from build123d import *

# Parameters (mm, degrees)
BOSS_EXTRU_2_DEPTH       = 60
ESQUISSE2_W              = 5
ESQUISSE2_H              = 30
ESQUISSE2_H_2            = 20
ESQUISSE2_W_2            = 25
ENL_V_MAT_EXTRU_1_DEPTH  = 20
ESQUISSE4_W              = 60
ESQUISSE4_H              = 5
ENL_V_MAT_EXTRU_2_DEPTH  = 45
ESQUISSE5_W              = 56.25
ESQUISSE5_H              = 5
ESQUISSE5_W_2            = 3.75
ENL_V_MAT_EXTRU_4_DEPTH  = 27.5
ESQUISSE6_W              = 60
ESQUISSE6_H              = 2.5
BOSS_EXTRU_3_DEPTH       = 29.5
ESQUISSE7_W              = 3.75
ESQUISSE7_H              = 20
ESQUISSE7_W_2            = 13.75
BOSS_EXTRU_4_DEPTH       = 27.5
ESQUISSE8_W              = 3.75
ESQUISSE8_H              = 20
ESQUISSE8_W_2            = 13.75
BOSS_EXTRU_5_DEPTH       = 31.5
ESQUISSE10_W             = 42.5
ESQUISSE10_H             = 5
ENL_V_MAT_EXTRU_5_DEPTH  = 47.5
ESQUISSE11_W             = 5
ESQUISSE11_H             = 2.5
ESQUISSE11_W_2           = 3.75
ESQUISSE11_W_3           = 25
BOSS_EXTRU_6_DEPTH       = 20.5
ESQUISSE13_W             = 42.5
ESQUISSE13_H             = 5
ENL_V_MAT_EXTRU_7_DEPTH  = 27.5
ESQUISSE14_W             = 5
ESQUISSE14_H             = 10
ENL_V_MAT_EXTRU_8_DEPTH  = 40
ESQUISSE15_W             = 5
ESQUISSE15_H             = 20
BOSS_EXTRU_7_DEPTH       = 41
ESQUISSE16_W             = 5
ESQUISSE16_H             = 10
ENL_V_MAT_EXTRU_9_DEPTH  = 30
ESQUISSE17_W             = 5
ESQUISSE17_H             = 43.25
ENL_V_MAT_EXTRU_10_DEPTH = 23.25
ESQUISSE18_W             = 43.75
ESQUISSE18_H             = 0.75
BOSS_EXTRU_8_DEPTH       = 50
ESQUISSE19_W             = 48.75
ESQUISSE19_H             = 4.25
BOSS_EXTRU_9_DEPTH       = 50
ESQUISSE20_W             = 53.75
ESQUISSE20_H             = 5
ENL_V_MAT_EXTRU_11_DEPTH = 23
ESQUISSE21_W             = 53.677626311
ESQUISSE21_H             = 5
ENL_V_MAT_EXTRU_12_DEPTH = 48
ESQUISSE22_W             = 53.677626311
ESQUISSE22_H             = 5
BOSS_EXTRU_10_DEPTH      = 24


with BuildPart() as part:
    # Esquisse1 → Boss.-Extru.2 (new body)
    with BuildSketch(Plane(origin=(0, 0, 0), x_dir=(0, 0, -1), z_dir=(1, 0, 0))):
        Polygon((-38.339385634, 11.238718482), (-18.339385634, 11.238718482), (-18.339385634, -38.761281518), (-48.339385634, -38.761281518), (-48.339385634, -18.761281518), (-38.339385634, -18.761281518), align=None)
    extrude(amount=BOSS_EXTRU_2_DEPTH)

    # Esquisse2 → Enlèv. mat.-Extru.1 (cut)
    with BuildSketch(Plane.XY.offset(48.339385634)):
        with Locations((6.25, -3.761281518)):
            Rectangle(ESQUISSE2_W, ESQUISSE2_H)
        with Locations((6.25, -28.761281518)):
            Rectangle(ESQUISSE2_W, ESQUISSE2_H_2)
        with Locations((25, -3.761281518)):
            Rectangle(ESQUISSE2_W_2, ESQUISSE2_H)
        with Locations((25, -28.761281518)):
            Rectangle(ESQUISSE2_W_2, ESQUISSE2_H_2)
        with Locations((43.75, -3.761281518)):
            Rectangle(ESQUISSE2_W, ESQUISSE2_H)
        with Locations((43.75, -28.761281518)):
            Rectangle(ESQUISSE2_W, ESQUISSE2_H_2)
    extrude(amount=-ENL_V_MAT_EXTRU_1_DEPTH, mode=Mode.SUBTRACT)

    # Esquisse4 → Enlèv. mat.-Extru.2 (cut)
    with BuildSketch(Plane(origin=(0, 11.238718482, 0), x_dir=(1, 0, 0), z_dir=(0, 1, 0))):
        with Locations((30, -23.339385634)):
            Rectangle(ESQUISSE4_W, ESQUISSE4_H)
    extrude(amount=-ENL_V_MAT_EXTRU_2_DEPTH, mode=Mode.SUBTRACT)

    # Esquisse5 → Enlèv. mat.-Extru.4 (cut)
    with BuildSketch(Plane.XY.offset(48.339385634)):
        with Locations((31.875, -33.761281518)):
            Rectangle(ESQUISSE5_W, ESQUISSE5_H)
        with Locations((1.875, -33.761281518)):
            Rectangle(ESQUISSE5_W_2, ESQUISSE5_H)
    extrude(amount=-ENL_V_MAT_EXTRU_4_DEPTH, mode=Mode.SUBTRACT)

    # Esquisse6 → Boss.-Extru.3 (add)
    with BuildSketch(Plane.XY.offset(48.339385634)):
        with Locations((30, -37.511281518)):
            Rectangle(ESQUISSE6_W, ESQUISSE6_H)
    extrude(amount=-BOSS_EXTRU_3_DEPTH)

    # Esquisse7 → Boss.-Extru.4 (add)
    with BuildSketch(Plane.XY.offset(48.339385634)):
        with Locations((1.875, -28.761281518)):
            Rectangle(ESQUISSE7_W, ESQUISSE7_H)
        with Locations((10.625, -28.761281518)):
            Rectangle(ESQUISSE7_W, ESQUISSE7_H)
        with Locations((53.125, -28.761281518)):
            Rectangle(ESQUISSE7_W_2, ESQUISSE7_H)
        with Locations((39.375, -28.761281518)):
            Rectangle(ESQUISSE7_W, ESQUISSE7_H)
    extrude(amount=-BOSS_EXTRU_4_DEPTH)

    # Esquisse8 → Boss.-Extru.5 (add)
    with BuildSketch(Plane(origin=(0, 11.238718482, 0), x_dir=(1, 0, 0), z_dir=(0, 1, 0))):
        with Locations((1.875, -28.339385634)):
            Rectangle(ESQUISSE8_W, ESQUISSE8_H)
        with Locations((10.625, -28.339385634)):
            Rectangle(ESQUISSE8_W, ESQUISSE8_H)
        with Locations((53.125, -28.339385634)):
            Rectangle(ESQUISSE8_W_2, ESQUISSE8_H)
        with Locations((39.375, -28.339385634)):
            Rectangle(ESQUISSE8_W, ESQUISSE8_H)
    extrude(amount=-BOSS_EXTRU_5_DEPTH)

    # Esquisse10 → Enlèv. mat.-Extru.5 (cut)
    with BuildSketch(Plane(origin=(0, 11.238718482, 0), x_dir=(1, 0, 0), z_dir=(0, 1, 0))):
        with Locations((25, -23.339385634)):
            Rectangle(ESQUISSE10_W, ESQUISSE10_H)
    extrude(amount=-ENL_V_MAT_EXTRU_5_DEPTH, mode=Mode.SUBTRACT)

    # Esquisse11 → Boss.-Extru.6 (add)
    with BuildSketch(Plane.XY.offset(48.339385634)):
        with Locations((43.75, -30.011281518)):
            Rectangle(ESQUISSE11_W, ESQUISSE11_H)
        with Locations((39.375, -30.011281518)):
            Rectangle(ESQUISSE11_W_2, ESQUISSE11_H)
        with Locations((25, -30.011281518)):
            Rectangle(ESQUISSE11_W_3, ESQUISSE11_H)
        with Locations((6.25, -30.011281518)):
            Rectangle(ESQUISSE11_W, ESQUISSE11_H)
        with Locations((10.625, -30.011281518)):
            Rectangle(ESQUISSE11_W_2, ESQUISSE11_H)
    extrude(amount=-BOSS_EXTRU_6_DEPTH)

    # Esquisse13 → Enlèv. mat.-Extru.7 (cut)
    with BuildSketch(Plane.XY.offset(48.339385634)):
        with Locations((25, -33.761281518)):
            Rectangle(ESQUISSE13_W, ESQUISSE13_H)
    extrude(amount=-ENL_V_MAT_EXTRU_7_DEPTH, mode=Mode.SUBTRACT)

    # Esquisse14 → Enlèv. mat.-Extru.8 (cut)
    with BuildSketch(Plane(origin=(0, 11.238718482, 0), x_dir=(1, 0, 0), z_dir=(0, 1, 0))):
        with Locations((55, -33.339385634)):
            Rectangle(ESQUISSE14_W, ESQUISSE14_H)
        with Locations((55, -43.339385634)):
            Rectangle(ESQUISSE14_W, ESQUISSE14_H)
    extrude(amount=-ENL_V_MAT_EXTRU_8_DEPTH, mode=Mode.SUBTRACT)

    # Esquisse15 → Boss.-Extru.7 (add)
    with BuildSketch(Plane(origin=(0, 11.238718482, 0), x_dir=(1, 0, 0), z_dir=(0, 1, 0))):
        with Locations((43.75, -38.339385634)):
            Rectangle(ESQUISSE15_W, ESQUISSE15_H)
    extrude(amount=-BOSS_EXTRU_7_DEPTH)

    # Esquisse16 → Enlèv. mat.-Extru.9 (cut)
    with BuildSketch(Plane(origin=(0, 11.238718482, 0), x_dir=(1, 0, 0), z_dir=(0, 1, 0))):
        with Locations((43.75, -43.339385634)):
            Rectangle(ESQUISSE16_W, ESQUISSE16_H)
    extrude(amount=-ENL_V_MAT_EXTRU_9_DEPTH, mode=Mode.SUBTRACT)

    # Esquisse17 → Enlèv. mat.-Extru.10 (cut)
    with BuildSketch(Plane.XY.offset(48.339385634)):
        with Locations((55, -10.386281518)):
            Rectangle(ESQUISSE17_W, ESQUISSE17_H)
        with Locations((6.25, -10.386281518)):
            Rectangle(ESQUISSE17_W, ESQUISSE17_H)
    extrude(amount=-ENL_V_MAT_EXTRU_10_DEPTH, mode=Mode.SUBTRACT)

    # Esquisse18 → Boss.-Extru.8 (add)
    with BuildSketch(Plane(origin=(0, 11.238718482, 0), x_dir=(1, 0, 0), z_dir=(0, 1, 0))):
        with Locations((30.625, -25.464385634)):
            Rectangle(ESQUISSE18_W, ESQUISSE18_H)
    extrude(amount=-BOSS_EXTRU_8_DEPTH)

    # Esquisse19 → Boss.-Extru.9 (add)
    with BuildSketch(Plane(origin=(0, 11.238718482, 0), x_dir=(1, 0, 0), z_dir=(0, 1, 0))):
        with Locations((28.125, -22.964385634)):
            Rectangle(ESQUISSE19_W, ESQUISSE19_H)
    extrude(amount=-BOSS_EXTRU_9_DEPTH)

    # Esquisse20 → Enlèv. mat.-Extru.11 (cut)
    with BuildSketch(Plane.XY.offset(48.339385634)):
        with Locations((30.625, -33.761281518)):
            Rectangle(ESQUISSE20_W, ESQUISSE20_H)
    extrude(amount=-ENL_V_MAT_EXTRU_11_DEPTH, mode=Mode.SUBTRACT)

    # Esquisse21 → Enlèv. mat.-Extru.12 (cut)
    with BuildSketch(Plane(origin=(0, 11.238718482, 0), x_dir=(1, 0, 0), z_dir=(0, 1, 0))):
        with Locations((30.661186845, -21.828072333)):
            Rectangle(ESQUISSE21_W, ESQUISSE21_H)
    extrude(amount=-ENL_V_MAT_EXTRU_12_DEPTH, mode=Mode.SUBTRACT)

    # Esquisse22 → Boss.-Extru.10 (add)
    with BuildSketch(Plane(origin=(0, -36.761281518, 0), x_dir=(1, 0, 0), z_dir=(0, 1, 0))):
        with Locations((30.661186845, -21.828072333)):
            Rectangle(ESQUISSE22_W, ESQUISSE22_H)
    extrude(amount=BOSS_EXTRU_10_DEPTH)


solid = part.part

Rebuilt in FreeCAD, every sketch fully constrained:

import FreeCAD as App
import Part
import Sketcher
Q = App.Units.Quantity

doc = App.newDocument("Part")
body = doc.addObject("PartDesign::Body", "Body")
body.AllowCompound = True

# Sketch on YZ plane
sketch1 = body.newObject("Sketcher::SketchObject", "Sketch")
sketch1.AttachmentSupport = (doc.getObject("YZ_Plane"), [""])
sketch1.MapMode = "FlatFace"
sketch1.addGeometry(Part.LineSegment(App.Vector(11, 18, 0), App.Vector(11, 38, 0)), False)
sketch1.addGeometry(Part.LineSegment(App.Vector(11, 38, 0), App.Vector(-19, 38, 0)), False)
sketch1.addGeometry(Part.LineSegment(App.Vector(-19, 38, 0), App.Vector(-19, 48, 0)), False)
sketch1.addGeometry(Part.LineSegment(App.Vector(-19, 48, 0), App.Vector(-39, 48, 0)), False)
sketch1.addGeometry(Part.LineSegment(App.Vector(-39, 48, 0), App.Vector(-39, 18, 0)), False)
sketch1.addGeometry(Part.LineSegment(App.Vector(-39, 18, 0), App.Vector(11, 18, 0)), False)
sketch1.addConstraint(Sketcher.Constraint("Coincident", 0, 2, 1, 1))
sketch1.addConstraint(Sketcher.Constraint("Coincident", 1, 2, 2, 1))
sketch1.addConstraint(Sketcher.Constraint("Coincident", 2, 2, 3, 1))
sketch1.addConstraint(Sketcher.Constraint("Coincident", 3, 2, 4, 1))
sketch1.addConstraint(Sketcher.Constraint("Coincident", 4, 2, 5, 1))
sketch1.addConstraint(Sketcher.Constraint("Coincident", 5, 2, 0, 1))
sketch1.addConstraint(Sketcher.Constraint("Vertical", 0))
sketch1.addConstraint(Sketcher.Constraint("Horizontal", 1))
sketch1.addConstraint(Sketcher.Constraint("Vertical", 2))
sketch1.addConstraint(Sketcher.Constraint("Horizontal", 3))
sketch1.addConstraint(Sketcher.Constraint("Vertical", 4))
sketch1.addConstraint(Sketcher.Constraint("Horizontal", 5))
sketch1.addConstraint(Sketcher.Constraint("Equal", 3, 0))
sketch1.addConstraint(Sketcher.Constraint("Equal", 1, 4))
sketch1.addConstraint(Sketcher.Constraint("DistanceX", 1, 2, 1, 1, Q("30 mm")))
sketch1.addConstraint(Sketcher.Constraint("DistanceX", 3, 2, 3, 1, Q("20 mm")))
sketch1.addConstraint(Sketcher.Constraint("DistanceX", -1, 1, 0, 2, Q("11.238718 mm")))
sketch1.addConstraint(Sketcher.Constraint("DistanceY", -1, 1, 0, 2, Q("38.339386 mm")))
pad1 = body.newObject("PartDesign::Pad", "Pad")
pad1.Profile = sketch1
pad1.Length = 60

# Sketch on XY plane
sketch2 = body.newObject("Sketcher::SketchObject", "Sketch001")
sketch2.AttachmentSupport = (doc.getObject("XY_Plane"), [""])
sketch2.MapMode = "FlatFace"
sketch2.AttachmentOffset = App.Placement(App.Vector(0, 0, 48.339386), App.Rotation())
sketch2.addGeometry(Part.LineSegment(App.Vector(4, 11, 0), App.Vector(4, -39, 0)), False)
sketch2.addGeometry(Part.LineSegment(App.Vector(4, -39, 0), App.Vector(9, -39, 0)), False)
sketch2.addGeometry(Part.LineSegment(App.Vector(9, -39, 0), App.Vector(9, 11, 0)), False)
sketch2.addGeometry(Part.LineSegment(App.Vector(9, 11, 0), App.Vector(4, 11, 0)), False)
sketch2.addGeometry(Part.LineSegment(App.Vector(12, 11, 0), App.Vector(12, -39, 0)), False)
sketch2.addGeometry(Part.LineSegment(App.Vector(12, -39, 0), App.Vector(38, -39, 0)), False)
sketch2.addGeometry(Part.LineSegment(App.Vector(38, -39, 0), App.Vector(38, 11, 0)), False)
sketch2.addGeometry(Part.LineSegment(App.Vector(38, 11, 0), App.Vector(12, 11, 0)), False)
sketch2.addGeometry(Part.LineSegment(App.Vector(41, 11, 0), App.Vector(41, -39, 0)), False)
sketch2.addGeometry(Part.LineSegment(App.Vector(41, -39, 0), App.Vector(46, -39, 0)), False)
sketch2.addGeometry(Part.LineSegment(App.Vector(46, -39, 0), App.Vector(46, 11, 0)), False)
sketch2.addGeometry(Part.LineSegment(App.Vector(46, 11, 0), App.Vector(41, 11, 0)), False)
sketch2.addConstraint(Sketcher.Constraint("Coincident", 0, 2, 1, 1))
sketch2.addConstraint(Sketcher.Constraint("Coincident", 1, 2, 2, 1))
sketch2.addConstraint(Sketcher.Constraint("Coincident", 2, 2, 3, 1))
sketch2.addConstraint(Sketcher.Constraint("Coincident", 3, 2, 0, 1))
sketch2.addConstraint(Sketcher.Constraint("Coincident", 4, 2, 5, 1))
sketch2.addConstraint(Sketcher.Constraint("Coincident", 5, 2, 6, 1))
sketch2.addConstraint(Sketcher.Constraint("Coincident", 6, 2, 7, 1))
sketch2.addConstraint(Sketcher.Constraint("Coincident", 7, 2, 4, 1))
sketch2.addConstraint(Sketcher.Constraint("Coincident", 8, 2, 9, 1))
sketch2.addConstraint(Sketcher.Constraint("Coincident", 9, 2, 10, 1))
sketch2.addConstraint(Sketcher.Constraint("Coincident", 10, 2, 11, 1))
sketch2.addConstraint(Sketcher.Constraint("Coincident", 11, 2, 8, 1))
sketch2.addConstraint(Sketcher.Constraint("Vertical", 0))
sketch2.addConstraint(Sketcher.Constraint("Horizontal", 1))
sketch2.addConstraint(Sketcher.Constraint("Vertical", 2))
sketch2.addConstraint(Sketcher.Constraint("Horizontal", 3))
sketch2.addConstraint(Sketcher.Constraint("Vertical", 4))
sketch2.addConstraint(Sketcher.Constraint("Horizontal", 5))
sketch2.addConstraint(Sketcher.Constraint("Vertical", 6))
sketch2.addConstraint(Sketcher.Constraint("Horizontal", 7))
sketch2.addConstraint(Sketcher.Constraint("Vertical", 8))
sketch2.addConstraint(Sketcher.Constraint("Horizontal", 9))
sketch2.addConstraint(Sketcher.Constraint("Vertical", 10))
sketch2.addConstraint(Sketcher.Constraint("Horizontal", 11))
sketch2.addConstraint(Sketcher.Constraint("Horizontal", 1, 2, 4, 2))
sketch2.addConstraint(Sketcher.Constraint("Horizontal", 3, 2, 6, 2))
sketch2.addConstraint(Sketcher.Constraint("Horizontal", 5, 2, 8, 2))
sketch2.addConstraint(Sketcher.Constraint("Horizontal", 7, 2, 10, 2))
sketch2.addConstraint(Sketcher.Constraint("Equal", 3, 9))
sketch2.addConstraint(Sketcher.Constraint("DistanceX", 1, 1, 1, 2, Q("5 mm")))
sketch2.addConstraint(Sketcher.Constraint("DistanceX", 5, 1, 5, 2, Q("25 mm")))
sketch2.addConstraint(Sketcher.Constraint("DistanceY", 0, 2, 0, 1, Q("50 mm")))
sketch2.addConstraint(Sketcher.Constraint("DistanceX", -1, 1, 4, 2, Q("12.5 mm")))
sketch2.addConstraint(Sketcher.Constraint("DistanceX", 1, 2, 8, 2, Q("32.5 mm")))
sketch2.addConstraint(Sketcher.Constraint("DistanceX", -1, 1, 0, 2, Q("3.75 mm")))
sketch2.addConstraint(Sketcher.Constraint("DistanceY", 0, 2, -1, 1, Q("38.761282 mm")))
pocket1 = body.newObject("PartDesign::Pocket", "Pocket")
pocket1.Profile = sketch2
pocket1.Length = 20

# Sketch on XZ plane
sketch3 = body.newObject("Sketcher::SketchObject", "Sketch002")
sketch3.AttachmentSupport = (doc.getObject("XZ_Plane"), [""])
sketch3.MapMode = "FlatFace"
sketch3.AttachmentOffset = App.Placement(App.Vector(0, 0, -11.238718), App.Rotation())
sketch3.addGeometry(Part.LineSegment(App.Vector(0, 21, 0), App.Vector(0, 26, 0)), False)
sketch3.addGeometry(Part.LineSegment(App.Vector(0, 26, 0), App.Vector(60, 26, 0)), False)
sketch3.addGeometry(Part.LineSegment(App.Vector(60, 26, 0), App.Vector(60, 21, 0)), False)
sketch3.addGeometry(Part.LineSegment(App.Vector(60, 21, 0), App.Vector(0, 21, 0)), False)
sketch3.addConstraint(Sketcher.Constraint("Coincident", 0, 2, 1, 1))
sketch3.addConstraint(Sketcher.Constraint("Coincident", 1, 2, 2, 1))
sketch3.addConstraint(Sketcher.Constraint("Coincident", 2, 2, 3, 1))
sketch3.addConstraint(Sketcher.Constraint("Coincident", 3, 2, 0, 1))
sketch3.addConstraint(Sketcher.Constraint("Vertical", 0))
sketch3.addConstraint(Sketcher.Constraint("Horizontal", 1))
sketch3.addConstraint(Sketcher.Constraint("Vertical", 2))
sketch3.addConstraint(Sketcher.Constraint("Horizontal", 3))
sketch3.addConstraint(Sketcher.Constraint("PointOnObject", 0, 2, -2))
sketch3.addConstraint(Sketcher.Constraint("DistanceX", 1, 1, 1, 2, Q("60 mm")))
sketch3.addConstraint(Sketcher.Constraint("DistanceY", 0, 1, 0, 2, Q("5 mm")))
sketch3.addConstraint(Sketcher.Constraint("DistanceY", -1, 1, 0, 2, Q("25.839386 mm")))
pocket2 = body.newObject("PartDesign::Pocket", "Pocket001")
pocket2.Profile = sketch3
pocket2.Length = 45
pocket2.Reversed = True

# Sketch on XY plane
sketch4 = body.newObject("Sketcher::SketchObject", "Sketch003")
sketch4.AttachmentSupport = (doc.getObject("XY_Plane"), [""])
sketch4.MapMode = "FlatFace"
sketch4.AttachmentOffset = App.Placement(App.Vector(0, 0, 48.339386), App.Rotation())
sketch4.addGeometry(Part.LineSegment(App.Vector(60, -36.3, 0), App.Vector(60, -31.3, 0)), False)
sketch4.addGeometry(Part.LineSegment(App.Vector(60, -31.3, 0), App.Vector(0, -31.3, 0)), False)
sketch4.addGeometry(Part.LineSegment(App.Vector(0, -31.3, 0), App.Vector(0, -36.3, 0)), False)
sketch4.addGeometry(Part.LineSegment(App.Vector(0, -36.3, 0), App.Vector(60, -36.3, 0)), False)
sketch4.addConstraint(Sketcher.Constraint("Coincident", 0, 2, 1, 1))
sketch4.addConstraint(Sketcher.Constraint("Coincident", 1, 2, 2, 1))
sketch4.addConstraint(Sketcher.Constraint("Coincident", 2, 2, 3, 1))
sketch4.addConstraint(Sketcher.Constraint("Coincident", 3, 2, 0, 1))
sketch4.addConstraint(Sketcher.Constraint("Vertical", 0))
sketch4.addConstraint(Sketcher.Constraint("Horizontal", 1))
sketch4.addConstraint(Sketcher.Constraint("Vertical", 2))
sketch4.addConstraint(Sketcher.Constraint("Horizontal", 3))
sketch4.addConstraint(Sketcher.Constraint("PointOnObject", 1, 2, -2))
sketch4.addConstraint(Sketcher.Constraint("DistanceX", 1, 2, 1, 1, Q("60 mm")))
sketch4.addConstraint(Sketcher.Constraint("DistanceY", 0, 1, 0, 2, Q("5 mm")))
sketch4.addConstraint(Sketcher.Constraint("DistanceY", 0, 2, -1, 1, Q("31.261282 mm")))
pocket3 = body.newObject("PartDesign::Pocket", "Pocket002")
pocket3.Profile = sketch4
pocket3.Length = 27.5

# Sketch on XY plane
sketch5 = body.newObject("Sketcher::SketchObject", "Sketch004")
sketch5.AttachmentSupport = (doc.getObject("XY_Plane"), [""])
sketch5.MapMode = "FlatFace"
sketch5.AttachmentOffset = App.Placement(App.Vector(0, 0, 48.339386), App.Rotation())
sketch5.addGeometry(Part.LineSegment(App.Vector(0, -36.3, 0), App.Vector(0, -38.8, 0)), False)
sketch5.addGeometry(Part.LineSegment(App.Vector(0, -38.8, 0), App.Vector(60, -38.8, 0)), False)
sketch5.addGeometry(Part.LineSegment(App.Vector(60, -38.8, 0), App.Vector(60, -36.3, 0)), False)
sketch5.addGeometry(Part.LineSegment(App.Vector(60, -36.3, 0), App.Vector(0, -36.3, 0)), False)
sketch5.addConstraint(Sketcher.Constraint("Coincident", 0, 2, 1, 1))
sketch5.addConstraint(Sketcher.Constraint("Coincident", 1, 2, 2, 1))
sketch5.addConstraint(Sketcher.Constraint("Coincident", 2, 2, 3, 1))
sketch5.addConstraint(Sketcher.Constraint("Coincident", 3, 2, 0, 1))
sketch5.addConstraint(Sketcher.Constraint("Vertical", 0))
sketch5.addConstraint(Sketcher.Constraint("Horizontal", 1))
sketch5.addConstraint(Sketcher.Constraint("Vertical", 2))
sketch5.addConstraint(Sketcher.Constraint("Horizontal", 3))
sketch5.addConstraint(Sketcher.Constraint("PointOnObject", 0, 2, -2))
sketch5.addConstraint(Sketcher.Constraint("DistanceX", 1, 1, 1, 2, Q("60 mm")))
sketch5.addConstraint(Sketcher.Constraint("DistanceY", 0, 2, 0, 1, Q("2.5 mm")))
sketch5.addConstraint(Sketcher.Constraint("DistanceY", 0, 2, -1, 1, Q("38.761282 mm")))
pad2 = body.newObject("PartDesign::Pad", "Pad001")
pad2.Profile = sketch5
pad2.Length = 29.5
pad2.Reversed = True

# Sketch on XY plane
sketch6 = body.newObject("Sketcher::SketchObject", "Sketch005")
sketch6.AttachmentSupport = (doc.getObject("XY_Plane"), [""])
sketch6.MapMode = "FlatFace"
sketch6.AttachmentOffset = App.Placement(App.Vector(0, 0, 48.339386), App.Rotation())
sketch6.addGeometry(Part.LineSegment(App.Vector(0, -18.8, 0), App.Vector(0, -38.8, 0)), False)
sketch6.addGeometry(Part.LineSegment(App.Vector(0, -38.8, 0), App.Vector(3.8, -38.8, 0)), False)
sketch6.addGeometry(Part.LineSegment(App.Vector(3.8, -38.8, 0), App.Vector(3.8, -18.8, 0)), False)
sketch6.addGeometry(Part.LineSegment(App.Vector(3.8, -18.8, 0), App.Vector(0, -18.8, 0)), False)
sketch6.addGeometry(Part.LineSegment(App.Vector(8.8, -18.8, 0), App.Vector(8.8, -38.8, 0)), False)
sketch6.addGeometry(Part.LineSegment(App.Vector(8.8, -38.8, 0), App.Vector(12.5, -38.8, 0)), False)
sketch6.addGeometry(Part.LineSegment(App.Vector(12.5, -38.8, 0), App.Vector(12.5, -18.8, 0)), False)
sketch6.addGeometry(Part.LineSegment(App.Vector(12.5, -18.8, 0), App.Vector(8.8, -18.8, 0)), False)
sketch6.addGeometry(Part.LineSegment(App.Vector(46.2, -18.8, 0), App.Vector(46.2, -38.8, 0)), False)
sketch6.addGeometry(Part.LineSegment(App.Vector(46.2, -38.8, 0), App.Vector(60, -38.8, 0)), False)
sketch6.addGeometry(Part.LineSegment(App.Vector(60, -38.8, 0), App.Vector(60, -18.8, 0)), False)
sketch6.addGeometry(Part.LineSegment(App.Vector(60, -18.8, 0), App.Vector(46.2, -18.8, 0)), False)
sketch6.addGeometry(Part.LineSegment(App.Vector(37.5, -18.8, 0), App.Vector(37.5, -38.8, 0)), False)
sketch6.addGeometry(Part.LineSegment(App.Vector(37.5, -38.8, 0), App.Vector(41.2, -38.8, 0)), False)
sketch6.addGeometry(Part.LineSegment(App.Vector(41.2, -38.8, 0), App.Vector(41.2, -18.8, 0)), False)
sketch6.addGeometry(Part.LineSegment(App.Vector(41.2, -18.8, 0), App.Vector(37.5, -18.8, 0)), False)
sketch6.addConstraint(Sketcher.Constraint("Coincident", 0, 2, 1, 1))
sketch6.addConstraint(Sketcher.Constraint("Coincident", 1, 2, 2, 1))
sketch6.addConstraint(Sketcher.Constraint("Coincident", 2, 2, 3, 1))
sketch6.addConstraint(Sketcher.Constraint("Coincident", 3, 2, 0, 1))
sketch6.addConstraint(Sketcher.Constraint("Coincident", 4, 2, 5, 1))
sketch6.addConstraint(Sketcher.Constraint("Coincident", 5, 2, 6, 1))
sketch6.addConstraint(Sketcher.Constraint("Coincident", 6, 2, 7, 1))
sketch6.addConstraint(Sketcher.Constraint("Coincident", 7, 2, 4, 1))
sketch6.addConstraint(Sketcher.Constraint("Coincident", 8, 2, 9, 1))
sketch6.addConstraint(Sketcher.Constraint("Coincident", 9, 2, 10, 1))
sketch6.addConstraint(Sketcher.Constraint("Coincident", 10, 2, 11, 1))
sketch6.addConstraint(Sketcher.Constraint("Coincident", 11, 2, 8, 1))
sketch6.addConstraint(Sketcher.Constraint("Coincident", 12, 2, 13, 1))
sketch6.addConstraint(Sketcher.Constraint("Coincident", 13, 2, 14, 1))
sketch6.addConstraint(Sketcher.Constraint("Coincident", 14, 2, 15, 1))
sketch6.addConstraint(Sketcher.Constraint("Coincident", 15, 2, 12, 1))
sketch6.addConstraint(Sketcher.Constraint("Vertical", 0))
sketch6.addConstraint(Sketcher.Constraint("Horizontal", 1))
sketch6.addConstraint(Sketcher.Constraint("Vertical", 2))
sketch6.addConstraint(Sketcher.Constraint("Horizontal", 3))
sketch6.addConstraint(Sketcher.Constraint("Vertical", 4))
sketch6.addConstraint(Sketcher.Constraint("Horizontal", 5))
sketch6.addConstraint(Sketcher.Constraint("Vertical", 6))
sketch6.addConstraint(Sketcher.Constraint("Horizontal", 7))
sketch6.addConstraint(Sketcher.Constraint("Vertical", 8))
sketch6.addConstraint(Sketcher.Constraint("Horizontal", 9))
sketch6.addConstraint(Sketcher.Constraint("Vertical", 10))
sketch6.addConstraint(Sketcher.Constraint("Horizontal", 11))
sketch6.addConstraint(Sketcher.Constraint("Vertical", 12))
sketch6.addConstraint(Sketcher.Constraint("Horizontal", 13))
sketch6.addConstraint(Sketcher.Constraint("Vertical", 14))
sketch6.addConstraint(Sketcher.Constraint("Horizontal", 15))
sketch6.addConstraint(Sketcher.Constraint("PointOnObject", 0, 2, -2))
sketch6.addConstraint(Sketcher.Constraint("Horizontal", 1, 2, 4, 2))
sketch6.addConstraint(Sketcher.Constraint("Horizontal", 3, 2, 6, 2))
sketch6.addConstraint(Sketcher.Constraint("Horizontal", 5, 2, 8, 2))
sketch6.addConstraint(Sketcher.Constraint("Horizontal", 7, 2, 10, 2))
sketch6.addConstraint(Sketcher.Constraint("Horizontal", 9, 2, 12, 2))
sketch6.addConstraint(Sketcher.Constraint("Horizontal", 11, 2, 14, 2))
sketch6.addConstraint(Sketcher.Constraint("Equal", 3, 5))
sketch6.addConstraint(Sketcher.Constraint("Equal", 7, 13))
sketch6.addConstraint(Sketcher.Constraint("DistanceY", 0, 2, 0, 1, Q("20 mm")))
sketch6.addConstraint(Sketcher.Constraint("DistanceX", -1, 1, 9, 2, Q("60 mm")))
sketch6.addConstraint(Sketcher.Constraint("DistanceX", 1, 2, 4, 2, Q("5 mm")))
sketch6.addConstraint(Sketcher.Constraint("DistanceX", 5, 2, 12, 2, Q("25 mm")))
sketch6.addConstraint(Sketcher.Constraint("DistanceX", 13, 2, 8, 2, Q("5 mm")))
sketch6.addConstraint(Sketcher.Constraint("DistanceX", 1, 1, 1, 2, Q("3.75 mm")))
sketch6.addConstraint(Sketcher.Constraint("DistanceY", 0, 2, -1, 1, Q("38.761282 mm")))
pad3 = body.newObject("PartDesign::Pad", "Pad002")
pad3.Profile = sketch6
pad3.Length = 27.5
pad3.Reversed = True

# Sketch on XZ plane
sketch7 = body.newObject("Sketcher::SketchObject", "Sketch006")
sketch7.AttachmentSupport = (doc.getObject("XZ_Plane"), [""])
sketch7.MapMode = "FlatFace"
sketch7.AttachmentOffset = App.Placement(App.Vector(0, 0, -11.238718), App.Rotation())
sketch7.addGeometry(Part.LineSegment(App.Vector(0, 18.3, 0), App.Vector(0, 38.3, 0)), False)
sketch7.addGeometry(Part.LineSegment(App.Vector(0, 38.3, 0), App.Vector(3.8, 38.3, 0)), False)
sketch7.addGeometry(Part.LineSegment(App.Vector(3.8, 38.3, 0), App.Vector(3.8, 18.3, 0)), False)
sketch7.addGeometry(Part.LineSegment(App.Vector(3.8, 18.3, 0), App.Vector(0, 18.3, 0)), False)
sketch7.addGeometry(Part.LineSegment(App.Vector(8.8, 18.3, 0), App.Vector(8.8, 38.3, 0)), False)
sketch7.addGeometry(Part.LineSegment(App.Vector(8.8, 38.3, 0), App.Vector(12.5, 38.3, 0)), False)
sketch7.addGeometry(Part.LineSegment(App.Vector(12.5, 38.3, 0), App.Vector(12.5, 18.3, 0)), False)
sketch7.addGeometry(Part.LineSegment(App.Vector(12.5, 18.3, 0), App.Vector(8.8, 18.3, 0)), False)
sketch7.addGeometry(Part.LineSegment(App.Vector(46.2, 18.3, 0), App.Vector(46.2, 38.3, 0)), False)
sketch7.addGeometry(Part.LineSegment(App.Vector(46.2, 38.3, 0), App.Vector(60, 38.3, 0)), False)
sketch7.addGeometry(Part.LineSegment(App.Vector(60, 38.3, 0), App.Vector(60, 18.3, 0)), False)
sketch7.addGeometry(Part.LineSegment(App.Vector(60, 18.3, 0), App.Vector(46.2, 18.3, 0)), False)
sketch7.addGeometry(Part.LineSegment(App.Vector(37.5, 18.3, 0), App.Vector(37.5, 38.3, 0)), False)
sketch7.addGeometry(Part.LineSegment(App.Vector(37.5, 38.3, 0), App.Vector(41.2, 38.3, 0)), False)
sketch7.addGeometry(Part.LineSegment(App.Vector(41.2, 38.3, 0), App.Vector(41.2, 18.3, 0)), False)
sketch7.addGeometry(Part.LineSegment(App.Vector(41.2, 18.3, 0), App.Vector(37.5, 18.3, 0)), False)
sketch7.addConstraint(Sketcher.Constraint("Coincident", 0, 2, 1, 1))
sketch7.addConstraint(Sketcher.Constraint("Coincident", 1, 2, 2, 1))
sketch7.addConstraint(Sketcher.Constraint("Coincident", 2, 2, 3, 1))
sketch7.addConstraint(Sketcher.Constraint("Coincident", 3, 2, 0, 1))
sketch7.addConstraint(Sketcher.Constraint("Coincident", 4, 2, 5, 1))
sketch7.addConstraint(Sketcher.Constraint("Coincident", 5, 2, 6, 1))
sketch7.addConstraint(Sketcher.Constraint("Coincident", 6, 2, 7, 1))
sketch7.addConstraint(Sketcher.Constraint("Coincident", 7, 2, 4, 1))
sketch7.addConstraint(Sketcher.Constraint("Coincident", 8, 2, 9, 1))
sketch7.addConstraint(Sketcher.Constraint("Coincident", 9, 2, 10, 1))
sketch7.addConstraint(Sketcher.Constraint("Coincident", 10, 2, 11, 1))
sketch7.addConstraint(Sketcher.Constraint("Coincident", 11, 2, 8, 1))
sketch7.addConstraint(Sketcher.Constraint("Coincident", 12, 2, 13, 1))
sketch7.addConstraint(Sketcher.Constraint("Coincident", 13, 2, 14, 1))
sketch7.addConstraint(Sketcher.Constraint("Coincident", 14, 2, 15, 1))
sketch7.addConstraint(Sketcher.Constraint("Coincident", 15, 2, 12, 1))
sketch7.addConstraint(Sketcher.Constraint("Vertical", 0))
sketch7.addConstraint(Sketcher.Constraint("Horizontal", 1))
sketch7.addConstraint(Sketcher.Constraint("Vertical", 2))
sketch7.addConstraint(Sketcher.Constraint("Horizontal", 3))
sketch7.addConstraint(Sketcher.Constraint("Vertical", 4))
sketch7.addConstraint(Sketcher.Constraint("Horizontal", 5))
sketch7.addConstraint(Sketcher.Constraint("Vertical", 6))
sketch7.addConstraint(Sketcher.Constraint("Horizontal", 7))
sketch7.addConstraint(Sketcher.Constraint("Vertical", 8))
sketch7.addConstraint(Sketcher.Constraint("Horizontal", 9))
sketch7.addConstraint(Sketcher.Constraint("Vertical", 10))
sketch7.addConstraint(Sketcher.Constraint("Horizontal", 11))
sketch7.addConstraint(Sketcher.Constraint("Vertical", 12))
sketch7.addConstraint(Sketcher.Constraint("Horizontal", 13))
sketch7.addConstraint(Sketcher.Constraint("Vertical", 14))
sketch7.addConstraint(Sketcher.Constraint("Horizontal", 15))
sketch7.addConstraint(Sketcher.Constraint("PointOnObject", 0, 2, -2))
sketch7.addConstraint(Sketcher.Constraint("Horizontal", 1, 2, 4, 2))
sketch7.addConstraint(Sketcher.Constraint("Horizontal", 3, 2, 6, 2))
sketch7.addConstraint(Sketcher.Constraint("Horizontal", 5, 2, 8, 2))
sketch7.addConstraint(Sketcher.Constraint("Horizontal", 7, 2, 10, 2))
sketch7.addConstraint(Sketcher.Constraint("Horizontal", 9, 2, 12, 2))
sketch7.addConstraint(Sketcher.Constraint("Horizontal", 11, 2, 14, 2))
sketch7.addConstraint(Sketcher.Constraint("Equal", 3, 5))
sketch7.addConstraint(Sketcher.Constraint("Equal", 7, 13))
sketch7.addConstraint(Sketcher.Constraint("DistanceY", 0, 1, 0, 2, Q("20 mm")))
sketch7.addConstraint(Sketcher.Constraint("DistanceX", -1, 1, 9, 2, Q("60 mm")))
sketch7.addConstraint(Sketcher.Constraint("DistanceX", 1, 2, 4, 2, Q("5 mm")))
sketch7.addConstraint(Sketcher.Constraint("DistanceX", 5, 2, 12, 2, Q("25 mm")))
sketch7.addConstraint(Sketcher.Constraint("DistanceX", 13, 2, 8, 2, Q("5 mm")))
sketch7.addConstraint(Sketcher.Constraint("DistanceX", 1, 1, 1, 2, Q("3.75 mm")))
sketch7.addConstraint(Sketcher.Constraint("DistanceY", -1, 1, 0, 2, Q("38.339386 mm")))
pad4 = body.newObject("PartDesign::Pad", "Pad003")
pad4.Profile = sketch7
pad4.Length = 31.5

# Sketch on XZ plane
sketch8 = body.newObject("Sketcher::SketchObject", "Sketch007")
sketch8.AttachmentSupport = (doc.getObject("XZ_Plane"), [""])
sketch8.MapMode = "FlatFace"
sketch8.AttachmentOffset = App.Placement(App.Vector(0, 0, -11.238718), App.Rotation())
sketch8.addGeometry(Part.LineSegment(App.Vector(4, 21, 0), App.Vector(4, 26, 0)), False)
sketch8.addGeometry(Part.LineSegment(App.Vector(4, 26, 0), App.Vector(46, 26, 0)), False)
sketch8.addGeometry(Part.LineSegment(App.Vector(46, 26, 0), App.Vector(46, 21, 0)), False)
sketch8.addGeometry(Part.LineSegment(App.Vector(46, 21, 0), App.Vector(4, 21, 0)), False)
sketch8.addConstraint(Sketcher.Constraint("Coincident", 0, 2, 1, 1))
sketch8.addConstraint(Sketcher.Constraint("Coincident", 1, 2, 2, 1))
sketch8.addConstraint(Sketcher.Constraint("Coincident", 2, 2, 3, 1))
sketch8.addConstraint(Sketcher.Constraint("Coincident", 3, 2, 0, 1))
sketch8.addConstraint(Sketcher.Constraint("Vertical", 0))
sketch8.addConstraint(Sketcher.Constraint("Horizontal", 1))
sketch8.addConstraint(Sketcher.Constraint("Vertical", 2))
sketch8.addConstraint(Sketcher.Constraint("Horizontal", 3))
sketch8.addConstraint(Sketcher.Constraint("DistanceY", 0, 1, 0, 2, Q("5 mm")))
sketch8.addConstraint(Sketcher.Constraint("DistanceX", 1, 1, 1, 2, Q("42.5 mm")))
sketch8.addConstraint(Sketcher.Constraint("DistanceX", -1, 1, 0, 2, Q("3.75 mm")))
sketch8.addConstraint(Sketcher.Constraint("DistanceY", -1, 1, 0, 2, Q("25.839386 mm")))
pocket4 = body.newObject("PartDesign::Pocket", "Pocket003")
pocket4.Profile = sketch8
pocket4.Length = 47.5
pocket4.Reversed = True

# Sketch on XY plane
sketch9 = body.newObject("Sketcher::SketchObject", "Sketch008")
sketch9.AttachmentSupport = (doc.getObject("XY_Plane"), [""])
sketch9.MapMode = "FlatFace"
sketch9.AttachmentOffset = App.Placement(App.Vector(0, 0, 48.339386), App.Rotation())
sketch9.addGeometry(Part.LineSegment(App.Vector(46.2, -31.3, 0), App.Vector(46.2, -28.8, 0)), False)
sketch9.addGeometry(Part.LineSegment(App.Vector(46.2, -28.8, 0), App.Vector(3.8, -28.8, 0)), False)
sketch9.addGeometry(Part.LineSegment(App.Vector(3.8, -28.8, 0), App.Vector(3.8, -31.3, 0)), False)
sketch9.addGeometry(Part.LineSegment(App.Vector(3.8, -31.3, 0), App.Vector(46.2, -31.3, 0)), False)
sketch9.addConstraint(Sketcher.Constraint("Coincident", 0, 2, 1, 1))
sketch9.addConstraint(Sketcher.Constraint("Coincident", 1, 2, 2, 1))
sketch9.addConstraint(Sketcher.Constraint("Coincident", 2, 2, 3, 1))
sketch9.addConstraint(Sketcher.Constraint("Coincident", 3, 2, 0, 1))
sketch9.addConstraint(Sketcher.Constraint("Vertical", 0))
sketch9.addConstraint(Sketcher.Constraint("Horizontal", 1))
sketch9.addConstraint(Sketcher.Constraint("Vertical", 2))
sketch9.addConstraint(Sketcher.Constraint("Horizontal", 3))
sketch9.addConstraint(Sketcher.Constraint("DistanceX", 1, 2, 1, 1, Q("42.5 mm")))
sketch9.addConstraint(Sketcher.Constraint("DistanceY", 0, 1, 0, 2, Q("2.5 mm")))
sketch9.addConstraint(Sketcher.Constraint("DistanceX", -1, 1, 0, 2, Q("46.25 mm")))
sketch9.addConstraint(Sketcher.Constraint("DistanceY", 0, 2, -1, 1, Q("28.761282 mm")))
pad5 = body.newObject("PartDesign::Pad", "Pad004")
pad5.Profile = sketch9
pad5.Length = 20.5
pad5.Reversed = True

# Sketch on XY plane
sketch10 = body.newObject("Sketcher::SketchObject", "Sketch009")
sketch10.AttachmentSupport = (doc.getObject("XY_Plane"), [""])
sketch10.MapMode = "FlatFace"
sketch10.AttachmentOffset = App.Placement(App.Vector(0, 0, 48.339386), App.Rotation())
sketch10.addGeometry(Part.LineSegment(App.Vector(3.8, -31.3, 0), App.Vector(3.8, -36.3, 0)), False)
sketch10.addGeometry(Part.LineSegment(App.Vector(3.8, -36.3, 0), App.Vector(46.2, -36.3, 0)), False)
sketch10.addGeometry(Part.LineSegment(App.Vector(46.2, -36.3, 0), App.Vector(46.2, -31.3, 0)), False)
sketch10.addGeometry(Part.LineSegment(App.Vector(46.2, -31.3, 0), App.Vector(3.8, -31.3, 0)), False)
sketch10.addConstraint(Sketcher.Constraint("Coincident", 0, 2, 1, 1))
sketch10.addConstraint(Sketcher.Constraint("Coincident", 1, 2, 2, 1))
sketch10.addConstraint(Sketcher.Constraint("Coincident", 2, 2, 3, 1))
sketch10.addConstraint(Sketcher.Constraint("Coincident", 3, 2, 0, 1))
sketch10.addConstraint(Sketcher.Constraint("Vertical", 0))
sketch10.addConstraint(Sketcher.Constraint("Horizontal", 1))
sketch10.addConstraint(Sketcher.Constraint("Vertical", 2))
sketch10.addConstraint(Sketcher.Constraint("Horizontal", 3))
sketch10.addConstraint(Sketcher.Constraint("DistanceY", 0, 2, 0, 1, Q("5 mm")))
sketch10.addConstraint(Sketcher.Constraint("DistanceX", 1, 1, 1, 2, Q("42.5 mm")))
sketch10.addConstraint(Sketcher.Constraint("DistanceX", -1, 1, 0, 2, Q("3.75 mm")))
sketch10.addConstraint(Sketcher.Constraint("DistanceY", 0, 2, -1, 1, Q("36.261282 mm")))
pocket5 = body.newObject("PartDesign::Pocket", "Pocket004")
pocket5.Profile = sketch10
pocket5.Length = 27.5

# Sketch on XZ plane
sketch11 = body.newObject("Sketcher::SketchObject", "Sketch010")
sketch11.AttachmentSupport = (doc.getObject("XZ_Plane"), [""])
sketch11.MapMode = "FlatFace"
sketch11.AttachmentOffset = App.Placement(App.Vector(0, 0, -11.238718), App.Rotation())
sketch11.addGeometry(Part.LineSegment(App.Vector(52, 28, 0), App.Vector(52, 48, 0)), False)
sketch11.addGeometry(Part.LineSegment(App.Vector(52, 48, 0), App.Vector(58, 48, 0)), False)
sketch11.addGeometry(Part.LineSegment(App.Vector(58, 48, 0), App.Vector(58, 28, 0)), False)
sketch11.addGeometry(Part.LineSegment(App.Vector(58, 28, 0), App.Vector(52, 28, 0)), False)
sketch11.addConstraint(Sketcher.Constraint("Coincident", 0, 2, 1, 1))
sketch11.addConstraint(Sketcher.Constraint("Coincident", 1, 2, 2, 1))
sketch11.addConstraint(Sketcher.Constraint("Coincident", 2, 2, 3, 1))
sketch11.addConstraint(Sketcher.Constraint("Coincident", 3, 2, 0, 1))
sketch11.addConstraint(Sketcher.Constraint("Vertical", 0))
sketch11.addConstraint(Sketcher.Constraint("Horizontal", 1))
sketch11.addConstraint(Sketcher.Constraint("Vertical", 2))
sketch11.addConstraint(Sketcher.Constraint("Horizontal", 3))
sketch11.addConstraint(Sketcher.Constraint("DistanceX", 1, 1, 1, 2, Q("5 mm")))
sketch11.addConstraint(Sketcher.Constraint("DistanceY", 0, 1, 0, 2, Q("20 mm")))
sketch11.addConstraint(Sketcher.Constraint("DistanceX", -1, 1, 0, 2, Q("52.5 mm")))
sketch11.addConstraint(Sketcher.Constraint("DistanceY", -1, 1, 0, 2, Q("48.339386 mm")))
pocket6 = body.newObject("PartDesign::Pocket", "Pocket005")
pocket6.Profile = sketch11
pocket6.Length = 40
pocket6.Reversed = True

# Sketch on XZ plane
sketch12 = body.newObject("Sketcher::SketchObject", "Sketch011")
sketch12.AttachmentSupport = (doc.getObject("XZ_Plane"), [""])
sketch12.MapMode = "FlatFace"
sketch12.AttachmentOffset = App.Placement(App.Vector(0, 0, -11.238718), App.Rotation())
sketch12.addGeometry(Part.LineSegment(App.Vector(41, 28, 0), App.Vector(41, 48, 0)), False)
sketch12.addGeometry(Part.LineSegment(App.Vector(41, 48, 0), App.Vector(46, 48, 0)), False)
sketch12.addGeometry(Part.LineSegment(App.Vector(46, 48, 0), App.Vector(46, 28, 0)), False)
sketch12.addGeometry(Part.LineSegment(App.Vector(46, 28, 0), App.Vector(41, 28, 0)), False)
sketch12.addConstraint(Sketcher.Constraint("Coincident", 0, 2, 1, 1))
sketch12.addConstraint(Sketcher.Constraint("Coincident", 1, 2, 2, 1))
sketch12.addConstraint(Sketcher.Constraint("Coincident", 2, 2, 3, 1))
sketch12.addConstraint(Sketcher.Constraint("Coincident", 3, 2, 0, 1))
sketch12.addConstraint(Sketcher.Constraint("Vertical", 0))
sketch12.addConstraint(Sketcher.Constraint("Horizontal", 1))
sketch12.addConstraint(Sketcher.Constraint("Vertical", 2))
sketch12.addConstraint(Sketcher.Constraint("Horizontal", 3))
sketch12.addConstraint(Sketcher.Constraint("DistanceX", 1, 1, 1, 2, Q("5 mm")))
sketch12.addConstraint(Sketcher.Constraint("DistanceY", 0, 1, 0, 2, Q("20 mm")))
sketch12.addConstraint(Sketcher.Constraint("DistanceX", -1, 1, 0, 2, Q("41.25 mm")))
sketch12.addConstraint(Sketcher.Constraint("DistanceY", -1, 1, 0, 2, Q("48.339386 mm")))
pad6 = body.newObject("PartDesign::Pad", "Pad005")
pad6.Profile = sketch12
pad6.Length = 41

# Sketch on XZ plane
sketch13 = body.newObject("Sketcher::SketchObject", "Sketch012")
sketch13.AttachmentSupport = (doc.getObject("XZ_Plane"), [""])
sketch13.MapMode = "FlatFace"
sketch13.AttachmentOffset = App.Placement(App.Vector(0, 0, -11.238718), App.Rotation())
sketch13.addGeometry(Part.LineSegment(App.Vector(41, 38, 0), App.Vector(41, 48, 0)), False)
sketch13.addGeometry(Part.LineSegment(App.Vector(41, 48, 0), App.Vector(46, 48, 0)), False)
sketch13.addGeometry(Part.LineSegment(App.Vector(46, 48, 0), App.Vector(46, 38, 0)), False)
sketch13.addGeometry(Part.LineSegment(App.Vector(46, 38, 0), App.Vector(41, 38, 0)), False)
sketch13.addConstraint(Sketcher.Constraint("Coincident", 0, 2, 1, 1))
sketch13.addConstraint(Sketcher.Constraint("Coincident", 1, 2, 2, 1))
sketch13.addConstraint(Sketcher.Constraint("Coincident", 2, 2, 3, 1))
sketch13.addConstraint(Sketcher.Constraint("Coincident", 3, 2, 0, 1))
sketch13.addConstraint(Sketcher.Constraint("Vertical", 0))
sketch13.addConstraint(Sketcher.Constraint("Horizontal", 1))
sketch13.addConstraint(Sketcher.Constraint("Vertical", 2))
sketch13.addConstraint(Sketcher.Constraint("Horizontal", 3))
sketch13.addConstraint(Sketcher.Constraint("DistanceX", 1, 1, 1, 2, Q("5 mm")))
sketch13.addConstraint(Sketcher.Constraint("DistanceY", 0, 1, 0, 2, Q("10 mm")))
sketch13.addConstraint(Sketcher.Constraint("DistanceX", -1, 1, 0, 2, Q("41.25 mm")))
sketch13.addConstraint(Sketcher.Constraint("DistanceY", -1, 1, 0, 2, Q("48.339386 mm")))
pocket7 = body.newObject("PartDesign::Pocket", "Pocket006")
pocket7.Profile = sketch13
pocket7.Length = 30
pocket7.Reversed = True

# Sketch on XY plane
sketch14 = body.newObject("Sketcher::SketchObject", "Sketch013")
sketch14.AttachmentSupport = (doc.getObject("XY_Plane"), [""])
sketch14.MapMode = "FlatFace"
sketch14.AttachmentOffset = App.Placement(App.Vector(0, 0, 48.339386), App.Rotation())
sketch14.addGeometry(Part.LineSegment(App.Vector(52, 11, 0), App.Vector(52, -32, 0)), False)
sketch14.addGeometry(Part.LineSegment(App.Vector(52, -32, 0), App.Vector(58, -32, 0)), False)
sketch14.addGeometry(Part.LineSegment(App.Vector(58, -32, 0), App.Vector(58, 11, 0)), False)
sketch14.addGeometry(Part.LineSegment(App.Vector(58, 11, 0), App.Vector(52, 11, 0)), False)
sketch14.addGeometry(Part.LineSegment(App.Vector(4, 11, 0), App.Vector(4, -32, 0)), False)
sketch14.addGeometry(Part.LineSegment(App.Vector(4, -32, 0), App.Vector(9, -32, 0)), False)
sketch14.addGeometry(Part.LineSegment(App.Vector(9, -32, 0), App.Vector(9, 11, 0)), False)
sketch14.addGeometry(Part.LineSegment(App.Vector(9, 11, 0), App.Vector(4, 11, 0)), False)
sketch14.addConstraint(Sketcher.Constraint("Coincident", 0, 2, 1, 1))
sketch14.addConstraint(Sketcher.Constraint("Coincident", 1, 2, 2, 1))
sketch14.addConstraint(Sketcher.Constraint("Coincident", 2, 2, 3, 1))
sketch14.addConstraint(Sketcher.Constraint("Coincident", 3, 2, 0, 1))
sketch14.addConstraint(Sketcher.Constraint("Coincident", 4, 2, 5, 1))
sketch14.addConstraint(Sketcher.Constraint("Coincident", 5, 2, 6, 1))
sketch14.addConstraint(Sketcher.Constraint("Coincident", 6, 2, 7, 1))
sketch14.addConstraint(Sketcher.Constraint("Coincident", 7, 2, 4, 1))
sketch14.addConstraint(Sketcher.Constraint("Vertical", 0))
sketch14.addConstraint(Sketcher.Constraint("Horizontal", 1))
sketch14.addConstraint(Sketcher.Constraint("Vertical", 2))
sketch14.addConstraint(Sketcher.Constraint("Horizontal", 3))
sketch14.addConstraint(Sketcher.Constraint("Vertical", 4))
sketch14.addConstraint(Sketcher.Constraint("Horizontal", 5))
sketch14.addConstraint(Sketcher.Constraint("Vertical", 6))
sketch14.addConstraint(Sketcher.Constraint("Horizontal", 7))
sketch14.addConstraint(Sketcher.Constraint("Horizontal", 1, 2, 4, 2))
sketch14.addConstraint(Sketcher.Constraint("Horizontal", 3, 2, 6, 2))
sketch14.addConstraint(Sketcher.Constraint("Equal", 3, 5))
sketch14.addConstraint(Sketcher.Constraint("DistanceX", 1, 1, 1, 2, Q("5 mm")))
sketch14.addConstraint(Sketcher.Constraint("DistanceY", 0, 2, 0, 1, Q("43.25 mm")))
sketch14.addConstraint(Sketcher.Constraint("DistanceX", -1, 1, 0, 2, Q("52.5 mm")))
sketch14.addConstraint(Sketcher.Constraint("DistanceX", -1, 1, 4, 2, Q("3.75 mm")))
sketch14.addConstraint(Sketcher.Constraint("DistanceY", 0, 2, -1, 1, Q("32.011282 mm")))
pocket8 = body.newObject("PartDesign::Pocket", "Pocket007")
pocket8.Profile = sketch14
pocket8.Length = 23.25

# Sketch on XZ plane
sketch15 = body.newObject("Sketcher::SketchObject", "Sketch014")
sketch15.AttachmentSupport = (doc.getObject("XZ_Plane"), [""])
sketch15.MapMode = "FlatFace"
sketch15.AttachmentOffset = App.Placement(App.Vector(0, 0, -11.238718), App.Rotation())
sketch15.addGeometry(Part.LineSegment(App.Vector(8.8, 25.1, 0), App.Vector(8.8, 25.8, 0)), False)
sketch15.addGeometry(Part.LineSegment(App.Vector(8.8, 25.8, 0), App.Vector(52.5, 25.8, 0)), False)
sketch15.addGeometry(Part.LineSegment(App.Vector(52.5, 25.8, 0), App.Vector(52.5, 25.1, 0)), False)
sketch15.addGeometry(Part.LineSegment(App.Vector(52.5, 25.1, 0), App.Vector(8.8, 25.1, 0)), False)
sketch15.addConstraint(Sketcher.Constraint("Coincident", 0, 2, 1, 1))
sketch15.addConstraint(Sketcher.Constraint("Coincident", 1, 2, 2, 1))
sketch15.addConstraint(Sketcher.Constraint("Coincident", 2, 2, 3, 1))
sketch15.addConstraint(Sketcher.Constraint("Coincident", 3, 2, 0, 1))
sketch15.addConstraint(Sketcher.Constraint("Vertical", 0))
sketch15.addConstraint(Sketcher.Constraint("Horizontal", 1))
sketch15.addConstraint(Sketcher.Constraint("Vertical", 2))
sketch15.addConstraint(Sketcher.Constraint("Horizontal", 3))
sketch15.addConstraint(Sketcher.Constraint("DistanceX", 1, 1, 1, 2, Q("43.75 mm")))
sketch15.addConstraint(Sketcher.Constraint("DistanceY", 0, 1, 0, 2, Q("0.75 mm")))
sketch15.addConstraint(Sketcher.Constraint("DistanceX", -1, 1, 1, 2, Q("52.5 mm")))
sketch15.addConstraint(Sketcher.Constraint("DistanceY", -1, 1, 0, 2, Q("25.839386 mm")))
pad7 = body.newObject("PartDesign::Pad", "Pad006")
pad7.Profile = sketch15
pad7.Length = 50

# Sketch on XZ plane
sketch16 = body.newObject("Sketcher::SketchObject", "Sketch015")
sketch16.AttachmentSupport = (doc.getObject("XZ_Plane"), [""])
sketch16.MapMode = "FlatFace"
sketch16.AttachmentOffset = App.Placement(App.Vector(0, 0, -11.238718), App.Rotation())
sketch16.addGeometry(Part.LineSegment(App.Vector(3.8, 20.8, 0), App.Vector(3.8, 25.1, 0)), False)
sketch16.addGeometry(Part.LineSegment(App.Vector(3.8, 25.1, 0), App.Vector(52.5, 25.1, 0)), False)
sketch16.addGeometry(Part.LineSegment(App.Vector(52.5, 25.1, 0), App.Vector(52.5, 20.8, 0)), False)
sketch16.addGeometry(Part.LineSegment(App.Vector(52.5, 20.8, 0), App.Vector(3.8, 20.8, 0)), False)
sketch16.addConstraint(Sketcher.Constraint("Coincident", 0, 2, 1, 1))
sketch16.addConstraint(Sketcher.Constraint("Coincident", 1, 2, 2, 1))
sketch16.addConstraint(Sketcher.Constraint("Coincident", 2, 2, 3, 1))
sketch16.addConstraint(Sketcher.Constraint("Coincident", 3, 2, 0, 1))
sketch16.addConstraint(Sketcher.Constraint("Vertical", 0))
sketch16.addConstraint(Sketcher.Constraint("Horizontal", 1))
sketch16.addConstraint(Sketcher.Constraint("Vertical", 2))
sketch16.addConstraint(Sketcher.Constraint("Horizontal", 3))
sketch16.addConstraint(Sketcher.Constraint("DistanceX", 1, 1, 1, 2, Q("48.75 mm")))
sketch16.addConstraint(Sketcher.Constraint("DistanceY", 0, 1, 0, 2, Q("4.25 mm")))
sketch16.addConstraint(Sketcher.Constraint("DistanceX", -1, 1, 1, 2, Q("52.5 mm")))
sketch16.addConstraint(Sketcher.Constraint("DistanceY", -1, 1, 0, 2, Q("25.089386 mm")))
pad8 = body.newObject("PartDesign::Pad", "Pad007")
pad8.Profile = sketch16
pad8.Length = 50

# Sketch on XY plane
sketch17 = body.newObject("Sketcher::SketchObject", "Sketch016")
sketch17.AttachmentSupport = (doc.getObject("XY_Plane"), [""])
sketch17.MapMode = "FlatFace"
sketch17.AttachmentOffset = App.Placement(App.Vector(0, 0, 48.339386), App.Rotation())
sketch17.addGeometry(Part.LineSegment(App.Vector(3.8, -31.3, 0), App.Vector(3.8, -36.3, 0)), False)
sketch17.addGeometry(Part.LineSegment(App.Vector(3.8, -36.3, 0), App.Vector(57.5, -36.3, 0)), False)
sketch17.addGeometry(Part.LineSegment(App.Vector(57.5, -36.3, 0), App.Vector(57.5, -31.3, 0)), False)
sketch17.addGeometry(Part.LineSegment(App.Vector(57.5, -31.3, 0), App.Vector(3.8, -31.3, 0)), False)
sketch17.addConstraint(Sketcher.Constraint("Coincident", 0, 2, 1, 1))
sketch17.addConstraint(Sketcher.Constraint("Coincident", 1, 2, 2, 1))
sketch17.addConstraint(Sketcher.Constraint("Coincident", 2, 2, 3, 1))
sketch17.addConstraint(Sketcher.Constraint("Coincident", 3, 2, 0, 1))
sketch17.addConstraint(Sketcher.Constraint("Vertical", 0))
sketch17.addConstraint(Sketcher.Constraint("Horizontal", 1))
sketch17.addConstraint(Sketcher.Constraint("Vertical", 2))
sketch17.addConstraint(Sketcher.Constraint("Horizontal", 3))
sketch17.addConstraint(Sketcher.Constraint("DistanceY", 0, 2, 0, 1, Q("5 mm")))
sketch17.addConstraint(Sketcher.Constraint("DistanceX", 1, 1, 1, 2, Q("53.75 mm")))
sketch17.addConstraint(Sketcher.Constraint("DistanceX", -1, 1, 1, 2, Q("57.5 mm")))
sketch17.addConstraint(Sketcher.Constraint("DistanceY", 0, 2, -1, 1, Q("36.261282 mm")))
pocket9 = body.newObject("PartDesign::Pocket", "Pocket008")
pocket9.Profile = sketch17
pocket9.Length = 23

# Sketch on XZ plane
sketch18 = body.newObject("Sketcher::SketchObject", "Sketch017")
sketch18.AttachmentSupport = (doc.getObject("XZ_Plane"), [""])
sketch18.MapMode = "FlatFace"
sketch18.AttachmentOffset = App.Placement(App.Vector(0, 0, -11.238718), App.Rotation())
sketch18.addGeometry(Part.LineSegment(App.Vector(4, 19, 0), App.Vector(4, 24, 0)), False)
sketch18.addGeometry(Part.LineSegment(App.Vector(4, 24, 0), App.Vector(58, 24, 0)), False)
sketch18.addGeometry(Part.LineSegment(App.Vector(58, 24, 0), App.Vector(58, 19, 0)), False)
sketch18.addGeometry(Part.LineSegment(App.Vector(58, 19, 0), App.Vector(4, 19, 0)), False)
sketch18.addConstraint(Sketcher.Constraint("Coincident", 0, 2, 1, 1))
sketch18.addConstraint(Sketcher.Constraint("Coincident", 1, 2, 2, 1))
sketch18.addConstraint(Sketcher.Constraint("Coincident", 2, 2, 3, 1))
sketch18.addConstraint(Sketcher.Constraint("Coincident", 3, 2, 0, 1))
sketch18.addConstraint(Sketcher.Constraint("Vertical", 0))
sketch18.addConstraint(Sketcher.Constraint("Horizontal", 1))
sketch18.addConstraint(Sketcher.Constraint("Vertical", 2))
sketch18.addConstraint(Sketcher.Constraint("Horizontal", 3))
sketch18.addConstraint(Sketcher.Constraint("DistanceY", 0, 1, 0, 2, Q("5 mm")))
sketch18.addConstraint(Sketcher.Constraint("DistanceX", -1, 1, 1, 2, Q("57.5 mm")))
sketch18.addConstraint(Sketcher.Constraint("DistanceX", 1, 1, 1, 2, Q("53.677626 mm")))
sketch18.addConstraint(Sketcher.Constraint("DistanceY", -1, 1, 0, 2, Q("24.328072 mm")))
pocket10 = body.newObject("PartDesign::Pocket", "Pocket009")
pocket10.Profile = sketch18
pocket10.Length = 48
pocket10.Reversed = True

# Sketch on XZ plane
sketch19 = body.newObject("Sketcher::SketchObject", "Sketch018")
sketch19.AttachmentSupport = (doc.getObject("XZ_Plane"), [""])
sketch19.MapMode = "FlatFace"
sketch19.AttachmentOffset = App.Placement(App.Vector(0, 0, 36.761282), App.Rotation())
sketch19.addGeometry(Part.LineSegment(App.Vector(4, 19, 0), App.Vector(4, 24, 0)), False)
sketch19.addGeometry(Part.LineSegment(App.Vector(4, 24, 0), App.Vector(58, 24, 0)), False)
sketch19.addGeometry(Part.LineSegment(App.Vector(58, 24, 0), App.Vector(58, 19, 0)), False)
sketch19.addGeometry(Part.LineSegment(App.Vector(58, 19, 0), App.Vector(4, 19, 0)), False)
sketch19.addConstraint(Sketcher.Constraint("Coincident", 0, 2, 1, 1))
sketch19.addConstraint(Sketcher.Constraint("Coincident", 1, 2, 2, 1))
sketch19.addConstraint(Sketcher.Constraint("Coincident", 2, 2, 3, 1))
sketch19.addConstraint(Sketcher.Constraint("Coincident", 3, 2, 0, 1))
sketch19.addConstraint(Sketcher.Constraint("Vertical", 0))
sketch19.addConstraint(Sketcher.Constraint("Horizontal", 1))
sketch19.addConstraint(Sketcher.Constraint("Vertical", 2))
sketch19.addConstraint(Sketcher.Constraint("Horizontal", 3))
sketch19.addConstraint(Sketcher.Constraint("DistanceY", 0, 1, 0, 2, Q("5 mm")))
sketch19.addConstraint(Sketcher.Constraint("DistanceX", -1, 1, 1, 2, Q("57.5 mm")))
sketch19.addConstraint(Sketcher.Constraint("DistanceX", 1, 1, 1, 2, Q("53.677626 mm")))
sketch19.addConstraint(Sketcher.Constraint("DistanceY", -1, 1, 0, 2, Q("24.328072 mm")))
pad9 = body.newObject("PartDesign::Pad", "Pad008")
pad9.Profile = sketch19
pad9.Length = 24
pad9.Reversed = True

doc.recompute()
